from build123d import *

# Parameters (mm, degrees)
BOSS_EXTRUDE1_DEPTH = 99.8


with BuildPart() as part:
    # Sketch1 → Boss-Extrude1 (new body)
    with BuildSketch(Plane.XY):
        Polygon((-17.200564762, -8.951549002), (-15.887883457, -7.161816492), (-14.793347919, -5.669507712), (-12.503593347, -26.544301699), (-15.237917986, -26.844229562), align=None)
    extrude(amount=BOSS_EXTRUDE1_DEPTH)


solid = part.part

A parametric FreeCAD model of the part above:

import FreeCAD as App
import Part
import Sketcher

V = App.Vector
Q = App.Units.Quantity

doc = App.newDocument("Part")
params = doc.addObject("Spreadsheet::Sheet", "Params")
for row, (alias, value) in enumerate([
    ("sketch1_length", "18 mm"),
    ("sketch1_length2", "21 mm"),
    ("pad1_length", "99.8 mm"),
], start=1):
    params.set(f"A{row}", alias)
    params.set(f"B{row}", "=" + value)
    params.setAlias(f"B{row}", alias)

body = doc.addObject("PartDesign::Body", "Body")

# Sketch on XY plane
sketch1 = body.newObject("Sketcher::SketchObject", "Sketch")
sketch1.AttachmentSupport = (doc.getObject("XY_Plane"), [""])
sketch1.MapMode = "FlatFace"
sketch1.addGeometry([
    Part.LineSegment(V(-15.887883, -7.161816, 0), V(-17.200565, -8.951549, 0)),  # 0
    Part.LineSegment(V(-17.200565, -8.951549, 0), V(-15.237918, -26.84423, 0)),  # 1
    Part.LineSegment(V(-15.237918, -26.84423, 0), V(-12.503593, -26.544302, 0)),  # 2
    Part.LineSegment(V(-12.503593, -26.544302, 0), V(-14.793348, -5.669508, 0)),  # 3
    Part.LineSegment(V(-14.793348, -5.669508, 0), V(-15.887883, -7.161816, 0)),  # 4
], False)
sketch1.addConstraint([
    Sketcher.Constraint("Coincident", 0, 2, 1, 1),
    Sketcher.Constraint("Coincident", 1, 2, 2, 1),
    Sketcher.Constraint("Coincident", 2, 2, 3, 1),
    Sketcher.Constraint("Coincident", 3, 2, 4, 1),
    Sketcher.Constraint("Coincident", 4, 2, 0, 1),
    Sketcher.Constraint("Perpendicular", 1, 2),
    Sketcher.Constraint("Perpendicular", 2, 3),
    Sketcher.Constraint("Parallel", 0, 4),
    Sketcher.Constraint("Distance", 1, Q("18 mm")),
    Sketcher.Constraint("Distance", 3, Q("21 mm")),
    Sketcher.Constraint("DistanceY", 2, 2, -1, 1, Q("26.544302 mm")),
    Sketcher.Constraint("Distance", 0, Q("2.219521 mm")),
    Sketcher.Constraint("DistanceY", 0, 2, -1, 1, Q("8.951549 mm")),
    Sketcher.Constraint("DistanceY", 1, 2, -1, 1, Q("26.84423 mm")),
    Sketcher.Constraint("DistanceX", 0, 2, -1, 1, Q("17.200565 mm")),
])
sketch1.setExpression("Constraints[8]", "Params.sketch1_length")
sketch1.setExpression("Constraints[9]", "Params.sketch1_length2")
pad1 = body.newObject("PartDesign::Pad", "Pad")
pad1.Profile = sketch1
pad1.setExpression("Length", "Params.pad1_length")

doc.recompute()
